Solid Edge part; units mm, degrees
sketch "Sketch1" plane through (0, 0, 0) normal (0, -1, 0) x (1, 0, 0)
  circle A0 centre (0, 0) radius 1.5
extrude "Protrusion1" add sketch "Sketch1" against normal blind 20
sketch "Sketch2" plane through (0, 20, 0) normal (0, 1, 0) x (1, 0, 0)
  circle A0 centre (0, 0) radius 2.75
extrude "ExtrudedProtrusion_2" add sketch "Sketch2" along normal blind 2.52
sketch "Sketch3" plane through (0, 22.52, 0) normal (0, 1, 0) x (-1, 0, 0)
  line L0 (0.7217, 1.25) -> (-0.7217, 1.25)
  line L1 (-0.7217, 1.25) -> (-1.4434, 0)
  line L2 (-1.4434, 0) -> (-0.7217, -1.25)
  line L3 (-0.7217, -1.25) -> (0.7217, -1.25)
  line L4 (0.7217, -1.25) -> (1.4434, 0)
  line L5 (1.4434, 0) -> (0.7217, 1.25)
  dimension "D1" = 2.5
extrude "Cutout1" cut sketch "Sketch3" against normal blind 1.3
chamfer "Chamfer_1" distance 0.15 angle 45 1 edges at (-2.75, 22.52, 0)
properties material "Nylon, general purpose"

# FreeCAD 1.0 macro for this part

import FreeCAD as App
import Part
import Sketcher

V = App.Vector
Q = App.Units.Quantity


def edges_at(feature, points):
    """Names of the edges that pass closest to the given points."""
    edges = feature.Shape.Edges
    near = lambda p: min(range(len(edges)), key=lambda i: edges[i].distToShape(Part.Vertex(*p))[0])
    return sorted({f"Edge{near(p) + 1}" for p in points})


def add_polygon(sketch, points):
    """Adds a closed chain of lines whose ends are joined by coincident constraints."""
    first, n = sketch.GeometryCount, len(points)
    for a, b in zip(points, points[1:] + points[:1]):
        sketch.addGeometry(Part.LineSegment(App.Vector(*a, 0), App.Vector(*b, 0)), False)
    for i in range(n):
        sketch.addConstraint(Sketcher.Constraint("Coincident", first + i, 2, first + (i + 1) % n, 1))

doc = App.newDocument("Part")
body = doc.addObject("PartDesign::Body", "Body")

# Sketch on XZ plane
sketch1 = body.newObject("Sketcher::SketchObject", "Sketch")
sketch1.AttachmentSupport = (doc.getObject("XZ_Plane"), [""])
sketch1.MapMode = "FlatFace"
sketch1.addGeometry(Part.Circle(V(0, 0, 0), V(0, 0, 1), 1.5), False)
sketch1.addConstraint([
    Sketcher.Constraint("Coincident", 0, 3, -1, 1),
    Sketcher.Constraint("Diameter", 0, Q("3 mm")),
])
pad1 = body.newObject("PartDesign::Pad", "Pad")
pad1.Profile = sketch1
pad1.Length = 20
pad1.Reversed = True

# Sketch on XZ plane
sketch2 = body.newObject("Sketcher::SketchObject", "Sketch001")
sketch2.AttachmentSupport = (doc.getObject("XZ_Plane"), [""])
sketch2.MapMode = "FlatFace"
sketch2.AttachmentOffset = App.Placement(V(0, 0, -20), App.Rotation())
sketch2.addGeometry(Part.Circle(V(0, 0, 0), V(0, 0, 1), 2.8), False)
sketch2.addConstraint([
    Sketcher.Constraint("Coincident", 0, 3, -1, 1),
    Sketcher.Constraint("Diameter", 0, Q("5.5 mm")),
])
pad2 = body.newObject("PartDesign::Pad", "Pad001")
pad2.Profile = sketch2
pad2.Length = 2.52
pad2.Reversed = True

# Sketch on XZ plane
sketch3 = body.newObject("Sketcher::SketchObject", "Sketch002")
sketch3.AttachmentSupport = (doc.getObject("XZ_Plane"), [""])
sketch3.MapMode = "FlatFace"
sketch3.AttachmentOffset = App.Placement(V(0, 0, -22.52), App.Rotation())
add_polygon(sketch3, [(-1.4, 0), (-0.7, 1.2), (0.7, 1.2), (1.4, 0), (0.7, -1.2), (-0.7, -1.2)])  # lines 0-5
sketch3.addConstraint([
    Sketcher.Constraint("Horizontal", 1),
    Sketcher.Constraint("Horizontal", 4),
    Sketcher.Constraint("Symmetric", 0, 2, 3, 2, -1, 1),
    Sketcher.Constraint("Symmetric", 2, 2, 5, 2, -1, 1),
    Sketcher.Constraint("PointOnObject", 2, 2, -1),
    Sketcher.Constraint("Parallel", 2, 5),
    Sketcher.Constraint("Vertical", 1, 2, 3, 2),
    Sketcher.Constraint("Angle", 0, Q("59.9996 deg")),
    Sketcher.Constraint("DistanceY", 3, 2, 1, 2, Q("2.5 mm")),
    Sketcher.Constraint("DistanceX", 1, 1, 1, 2, Q("1.4434 mm")),
])
pocket1 = body.newObject("PartDesign::Pocket", "Pocket")
pocket1.Profile = sketch3
pocket1.Length = 1.3
pocket1.Reversed = True
doc.recompute()

chamfer = body.newObject("PartDesign::Chamfer", "Chamfer")
chamfer.Base = (pocket1, edges_at(pocket1, [(-2.75, 22.52, 0)]))
chamfer.Size = 0.15

doc.recompute()
